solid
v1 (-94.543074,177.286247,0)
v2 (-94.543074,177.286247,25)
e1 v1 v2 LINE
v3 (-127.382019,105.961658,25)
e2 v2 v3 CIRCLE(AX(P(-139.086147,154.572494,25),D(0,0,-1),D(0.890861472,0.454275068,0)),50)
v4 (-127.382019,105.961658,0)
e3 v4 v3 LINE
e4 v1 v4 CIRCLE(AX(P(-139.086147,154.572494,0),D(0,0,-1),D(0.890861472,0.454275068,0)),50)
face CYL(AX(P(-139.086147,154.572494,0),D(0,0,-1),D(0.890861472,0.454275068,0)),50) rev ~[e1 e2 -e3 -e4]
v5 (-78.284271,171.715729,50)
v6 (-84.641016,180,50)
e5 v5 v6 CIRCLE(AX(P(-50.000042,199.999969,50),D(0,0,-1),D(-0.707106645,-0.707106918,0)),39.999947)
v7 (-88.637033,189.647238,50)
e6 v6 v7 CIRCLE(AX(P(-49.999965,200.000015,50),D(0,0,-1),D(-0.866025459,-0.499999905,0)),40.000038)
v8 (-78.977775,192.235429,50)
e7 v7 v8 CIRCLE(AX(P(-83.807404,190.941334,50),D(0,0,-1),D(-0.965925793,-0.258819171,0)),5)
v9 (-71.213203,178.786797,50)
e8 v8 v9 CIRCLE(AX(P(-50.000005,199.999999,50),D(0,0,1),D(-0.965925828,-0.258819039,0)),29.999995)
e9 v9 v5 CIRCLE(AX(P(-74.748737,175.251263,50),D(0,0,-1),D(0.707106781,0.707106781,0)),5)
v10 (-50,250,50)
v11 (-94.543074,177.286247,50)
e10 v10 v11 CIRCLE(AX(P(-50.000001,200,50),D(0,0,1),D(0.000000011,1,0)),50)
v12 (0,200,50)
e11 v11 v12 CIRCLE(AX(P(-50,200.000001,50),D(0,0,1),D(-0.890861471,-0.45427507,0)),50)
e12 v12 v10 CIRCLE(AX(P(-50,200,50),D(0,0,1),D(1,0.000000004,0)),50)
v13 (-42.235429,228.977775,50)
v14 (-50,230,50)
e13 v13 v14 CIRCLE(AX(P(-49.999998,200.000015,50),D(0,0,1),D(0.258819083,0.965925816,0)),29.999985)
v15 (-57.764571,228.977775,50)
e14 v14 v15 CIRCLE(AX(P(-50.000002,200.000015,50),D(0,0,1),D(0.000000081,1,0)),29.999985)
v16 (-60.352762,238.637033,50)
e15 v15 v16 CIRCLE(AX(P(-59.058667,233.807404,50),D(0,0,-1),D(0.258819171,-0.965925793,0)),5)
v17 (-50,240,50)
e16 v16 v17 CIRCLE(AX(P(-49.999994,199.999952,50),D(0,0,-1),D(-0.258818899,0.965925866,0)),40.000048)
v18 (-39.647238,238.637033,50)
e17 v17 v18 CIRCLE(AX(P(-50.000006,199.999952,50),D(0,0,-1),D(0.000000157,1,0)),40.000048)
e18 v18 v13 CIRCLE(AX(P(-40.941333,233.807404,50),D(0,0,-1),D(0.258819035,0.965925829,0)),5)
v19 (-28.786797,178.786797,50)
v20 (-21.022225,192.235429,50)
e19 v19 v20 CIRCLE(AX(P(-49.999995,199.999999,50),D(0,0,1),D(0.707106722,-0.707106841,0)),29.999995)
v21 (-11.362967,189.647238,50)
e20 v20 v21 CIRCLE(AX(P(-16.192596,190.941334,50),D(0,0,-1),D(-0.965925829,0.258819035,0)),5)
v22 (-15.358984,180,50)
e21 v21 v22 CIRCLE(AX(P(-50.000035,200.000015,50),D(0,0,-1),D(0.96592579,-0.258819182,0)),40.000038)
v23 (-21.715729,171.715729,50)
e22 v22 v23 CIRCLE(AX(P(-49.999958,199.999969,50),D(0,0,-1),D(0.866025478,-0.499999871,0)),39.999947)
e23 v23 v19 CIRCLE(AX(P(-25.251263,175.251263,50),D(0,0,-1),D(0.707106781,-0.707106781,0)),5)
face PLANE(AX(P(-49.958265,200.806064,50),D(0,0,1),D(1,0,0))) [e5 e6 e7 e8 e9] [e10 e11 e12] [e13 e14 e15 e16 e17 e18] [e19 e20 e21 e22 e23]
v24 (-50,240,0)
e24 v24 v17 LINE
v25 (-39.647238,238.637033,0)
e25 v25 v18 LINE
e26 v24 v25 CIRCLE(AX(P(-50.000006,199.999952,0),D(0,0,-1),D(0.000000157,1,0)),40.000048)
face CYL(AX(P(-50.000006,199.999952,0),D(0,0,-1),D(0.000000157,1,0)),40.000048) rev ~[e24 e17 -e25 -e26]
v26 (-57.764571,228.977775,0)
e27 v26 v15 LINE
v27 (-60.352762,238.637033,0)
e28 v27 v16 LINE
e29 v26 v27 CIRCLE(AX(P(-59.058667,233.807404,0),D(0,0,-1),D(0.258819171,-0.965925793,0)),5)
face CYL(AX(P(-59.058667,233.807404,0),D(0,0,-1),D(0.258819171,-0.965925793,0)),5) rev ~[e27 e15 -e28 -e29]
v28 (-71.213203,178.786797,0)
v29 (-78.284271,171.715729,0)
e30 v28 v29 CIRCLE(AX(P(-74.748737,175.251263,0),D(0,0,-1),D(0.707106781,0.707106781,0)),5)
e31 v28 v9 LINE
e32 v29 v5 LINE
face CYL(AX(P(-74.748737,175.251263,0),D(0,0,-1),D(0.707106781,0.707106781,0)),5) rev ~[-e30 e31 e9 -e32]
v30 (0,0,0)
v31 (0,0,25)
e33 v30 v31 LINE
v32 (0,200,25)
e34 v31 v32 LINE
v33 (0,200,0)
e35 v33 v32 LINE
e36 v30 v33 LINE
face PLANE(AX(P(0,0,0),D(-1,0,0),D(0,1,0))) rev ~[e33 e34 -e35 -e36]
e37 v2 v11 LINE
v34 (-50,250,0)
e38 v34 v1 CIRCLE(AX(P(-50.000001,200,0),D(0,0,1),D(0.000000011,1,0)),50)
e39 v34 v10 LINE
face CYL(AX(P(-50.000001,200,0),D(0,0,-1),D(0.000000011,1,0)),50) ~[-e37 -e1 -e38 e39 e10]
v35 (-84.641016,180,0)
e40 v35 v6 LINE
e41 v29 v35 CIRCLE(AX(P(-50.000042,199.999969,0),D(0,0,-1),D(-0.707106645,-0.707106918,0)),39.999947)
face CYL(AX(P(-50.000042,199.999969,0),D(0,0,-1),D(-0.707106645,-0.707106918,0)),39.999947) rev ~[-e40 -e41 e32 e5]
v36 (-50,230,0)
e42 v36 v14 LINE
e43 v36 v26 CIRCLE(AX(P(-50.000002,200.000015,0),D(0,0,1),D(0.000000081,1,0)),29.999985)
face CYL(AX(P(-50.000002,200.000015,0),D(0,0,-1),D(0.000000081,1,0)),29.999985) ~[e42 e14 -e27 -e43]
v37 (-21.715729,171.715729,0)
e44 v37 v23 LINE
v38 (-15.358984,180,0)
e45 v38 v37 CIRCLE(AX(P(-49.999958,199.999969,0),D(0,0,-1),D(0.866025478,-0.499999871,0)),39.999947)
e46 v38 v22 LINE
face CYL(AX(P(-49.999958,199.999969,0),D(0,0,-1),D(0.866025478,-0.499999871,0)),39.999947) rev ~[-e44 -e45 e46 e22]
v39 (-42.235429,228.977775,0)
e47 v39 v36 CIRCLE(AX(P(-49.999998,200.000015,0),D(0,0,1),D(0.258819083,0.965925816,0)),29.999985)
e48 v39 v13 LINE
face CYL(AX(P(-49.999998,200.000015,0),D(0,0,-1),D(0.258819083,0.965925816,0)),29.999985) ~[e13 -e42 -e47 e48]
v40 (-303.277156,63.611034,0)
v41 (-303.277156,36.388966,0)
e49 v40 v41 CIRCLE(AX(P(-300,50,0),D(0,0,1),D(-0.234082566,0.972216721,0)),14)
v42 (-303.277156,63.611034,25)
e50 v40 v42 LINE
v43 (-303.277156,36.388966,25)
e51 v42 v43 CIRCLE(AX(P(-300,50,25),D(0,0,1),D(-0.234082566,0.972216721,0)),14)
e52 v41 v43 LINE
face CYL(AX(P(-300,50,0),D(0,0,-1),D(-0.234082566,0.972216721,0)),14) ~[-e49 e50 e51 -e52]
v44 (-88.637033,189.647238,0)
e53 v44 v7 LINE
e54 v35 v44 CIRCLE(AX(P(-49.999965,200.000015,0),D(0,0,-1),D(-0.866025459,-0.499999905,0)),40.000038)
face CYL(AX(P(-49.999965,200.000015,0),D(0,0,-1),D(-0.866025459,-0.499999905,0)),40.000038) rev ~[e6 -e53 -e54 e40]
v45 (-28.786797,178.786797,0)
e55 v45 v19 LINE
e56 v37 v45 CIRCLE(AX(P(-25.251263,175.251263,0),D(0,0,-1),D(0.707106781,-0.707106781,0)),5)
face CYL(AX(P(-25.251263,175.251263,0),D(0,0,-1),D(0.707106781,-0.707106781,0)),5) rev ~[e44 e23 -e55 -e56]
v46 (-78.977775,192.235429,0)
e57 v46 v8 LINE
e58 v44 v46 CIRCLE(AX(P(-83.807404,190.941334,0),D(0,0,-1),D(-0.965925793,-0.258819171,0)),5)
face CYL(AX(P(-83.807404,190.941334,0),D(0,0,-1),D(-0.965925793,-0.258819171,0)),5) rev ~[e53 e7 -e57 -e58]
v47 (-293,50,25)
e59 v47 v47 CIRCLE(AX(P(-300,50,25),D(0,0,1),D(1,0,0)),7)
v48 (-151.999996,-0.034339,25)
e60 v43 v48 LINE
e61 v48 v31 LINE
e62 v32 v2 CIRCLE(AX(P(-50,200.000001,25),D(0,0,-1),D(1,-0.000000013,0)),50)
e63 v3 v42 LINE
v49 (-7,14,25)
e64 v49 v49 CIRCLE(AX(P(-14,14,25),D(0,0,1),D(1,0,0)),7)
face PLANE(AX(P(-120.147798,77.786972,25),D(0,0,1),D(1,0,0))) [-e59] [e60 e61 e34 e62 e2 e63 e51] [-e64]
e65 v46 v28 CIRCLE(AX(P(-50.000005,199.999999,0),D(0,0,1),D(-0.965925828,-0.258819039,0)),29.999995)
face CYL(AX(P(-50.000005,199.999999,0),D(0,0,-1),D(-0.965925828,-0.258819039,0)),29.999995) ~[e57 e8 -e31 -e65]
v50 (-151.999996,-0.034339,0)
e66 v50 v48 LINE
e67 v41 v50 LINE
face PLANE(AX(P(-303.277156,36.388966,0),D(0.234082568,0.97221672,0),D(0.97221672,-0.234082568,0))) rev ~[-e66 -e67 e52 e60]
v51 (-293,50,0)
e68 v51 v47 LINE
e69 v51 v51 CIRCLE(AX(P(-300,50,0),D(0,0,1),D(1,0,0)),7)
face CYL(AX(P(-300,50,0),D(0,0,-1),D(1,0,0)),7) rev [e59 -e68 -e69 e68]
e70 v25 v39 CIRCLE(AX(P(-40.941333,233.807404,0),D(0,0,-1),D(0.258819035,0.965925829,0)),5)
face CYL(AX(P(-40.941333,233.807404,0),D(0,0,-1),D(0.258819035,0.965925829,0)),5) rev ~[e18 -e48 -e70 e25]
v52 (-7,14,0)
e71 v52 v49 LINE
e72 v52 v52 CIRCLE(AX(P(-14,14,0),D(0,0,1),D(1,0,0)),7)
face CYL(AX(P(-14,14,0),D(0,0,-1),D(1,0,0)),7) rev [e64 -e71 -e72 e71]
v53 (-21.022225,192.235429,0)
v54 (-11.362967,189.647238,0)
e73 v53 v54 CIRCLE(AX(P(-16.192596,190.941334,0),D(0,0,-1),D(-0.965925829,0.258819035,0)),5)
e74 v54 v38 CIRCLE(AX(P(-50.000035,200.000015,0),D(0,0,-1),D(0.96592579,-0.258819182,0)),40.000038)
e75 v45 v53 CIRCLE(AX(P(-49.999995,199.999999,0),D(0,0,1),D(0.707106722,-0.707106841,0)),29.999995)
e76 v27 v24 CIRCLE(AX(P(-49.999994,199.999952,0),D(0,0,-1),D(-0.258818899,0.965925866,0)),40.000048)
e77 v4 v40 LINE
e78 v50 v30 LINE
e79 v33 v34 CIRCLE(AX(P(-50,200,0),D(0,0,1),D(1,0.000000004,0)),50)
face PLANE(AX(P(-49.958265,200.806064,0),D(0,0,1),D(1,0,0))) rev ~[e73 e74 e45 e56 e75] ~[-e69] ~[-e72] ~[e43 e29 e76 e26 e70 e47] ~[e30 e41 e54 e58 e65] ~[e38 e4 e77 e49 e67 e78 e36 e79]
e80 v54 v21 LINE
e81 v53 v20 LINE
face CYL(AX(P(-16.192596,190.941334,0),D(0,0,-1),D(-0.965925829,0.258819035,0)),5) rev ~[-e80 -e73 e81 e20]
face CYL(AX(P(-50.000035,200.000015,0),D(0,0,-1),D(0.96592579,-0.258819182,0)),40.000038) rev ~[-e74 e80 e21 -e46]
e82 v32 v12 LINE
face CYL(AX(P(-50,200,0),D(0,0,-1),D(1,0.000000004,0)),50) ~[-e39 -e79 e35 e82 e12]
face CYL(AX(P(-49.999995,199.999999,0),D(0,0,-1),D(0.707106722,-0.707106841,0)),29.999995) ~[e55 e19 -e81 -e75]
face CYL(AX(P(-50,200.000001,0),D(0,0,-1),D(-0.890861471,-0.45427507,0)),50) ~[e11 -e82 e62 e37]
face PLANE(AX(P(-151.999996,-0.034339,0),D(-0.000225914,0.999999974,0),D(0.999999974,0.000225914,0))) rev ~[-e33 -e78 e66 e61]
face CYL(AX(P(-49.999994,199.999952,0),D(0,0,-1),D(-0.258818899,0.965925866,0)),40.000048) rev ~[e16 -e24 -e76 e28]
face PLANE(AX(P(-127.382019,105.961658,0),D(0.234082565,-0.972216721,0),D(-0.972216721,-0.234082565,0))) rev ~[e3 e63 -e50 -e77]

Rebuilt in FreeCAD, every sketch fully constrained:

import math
import FreeCAD as App
import Part
import Sketcher

doc = App.newDocument("Part")
body = doc.addObject("PartDesign::Body", "Body")

# Sketch on XY plane
sketch1 = doc.addObject("Sketcher::SketchObject", "Sketch")
body.addObject(sketch1)
sketch1.AttachmentSupport = (doc.XY_Plane, [""])
sketch1.MapMode = "FlatFace"
sketch1.addGeometry(Part.LineSegment(App.Vector(-152, 0, 0), App.Vector(0, 0, 0)), False)
sketch1.addGeometry(Part.LineSegment(App.Vector(0, 0, 0), App.Vector(0, 200, 0)), False)
sketch1.addGeometry(Part.ArcOfCircle(Part.Circle(App.Vector(-50, 200, 0), App.Vector(0, 0, 1), 50), math.radians(-153), math.radians(0)), False)
sketch1.addGeometry(Part.ArcOfCircle(Part.Circle(App.Vector(-139, 155, 0), App.Vector(0, 0, 1), 50), math.radians(-76), math.radians(27)), False)
sketch1.addGeometry(Part.LineSegment(App.Vector(-127, 106, 0), App.Vector(-303, 64, 0)), False)
sketch1.addGeometry(Part.ArcOfCircle(Part.Circle(App.Vector(-300, 50, 0), App.Vector(0, 0, 1), 14), math.radians(104), math.radians(256)), False)
sketch1.addGeometry(Part.LineSegment(App.Vector(-303, 36, 0), App.Vector(-152, 0, 0)), False)
sketch1.addGeometry(Part.Circle(App.Vector(-14, 14, 0), App.Vector(0, 0, 1), 7), False)
sketch1.addGeometry(Part.Circle(App.Vector(-300, 50, 0), App.Vector(0, 0, 1), 7), False)
sketch1.addConstraint(Sketcher.Constraint("Coincident", 0, 2, 1, 1))
sketch1.addConstraint(Sketcher.Constraint("Tangent", 1, 2, 2, 2))
sketch1.addConstraint(Sketcher.Constraint("Tangent", 2, 1, 3, 2))
sketch1.addConstraint(Sketcher.Constraint("Tangent", 3, 1, 4, 1))
sketch1.addConstraint(Sketcher.Constraint("Tangent", 4, 2, 5, 1))
sketch1.addConstraint(Sketcher.Constraint("Tangent", 5, 2, 6, 1))
sketch1.addConstraint(Sketcher.Constraint("Coincident", 6, 2, 0, 1))
sketch1.addConstraint(Sketcher.Constraint("Vertical", 1))
sketch1.addConstraint(Sketcher.Constraint("Coincident", 0, 2, -1, 1))
sketch1.addConstraint(Sketcher.Constraint("Coincident", 8, 3, 5, 3))
sketch1.addConstraint(Sketcher.Constraint("Equal", 2, 3))
sketch1.addConstraint(Sketcher.Constraint("Equal", 7, 8))
sketch1.addConstraint(Sketcher.Constraint("Vertical", 4, 2, 5, 2))
sketch1.addConstraint(Sketcher.Constraint("Diameter", 7, 14.0))
sketch1.addConstraint(Sketcher.Constraint("Radius", 2, 50.0))
sketch1.addConstraint(Sketcher.Constraint("Radius", 5, 14.0))
sketch1.addConstraint(Sketcher.Constraint("DistanceY", 1, 1, 1, 2, 200.0))
sketch1.addConstraint(Sketcher.Constraint("Distance", 0, 152.0))
sketch1.addConstraint(Sketcher.Constraint("DistanceX", 5, 3, -1, 1, 300.0))
sketch1.addConstraint(Sketcher.Constraint("DistanceY", -1, 1, 5, 3, 50.0))
sketch1.addConstraint(Sketcher.Constraint("DistanceX", 7, 3, -1, 1, 14.0))
sketch1.addConstraint(Sketcher.Constraint("DistanceY", -1, 1, 7, 3, 14.0))
sketch1.addConstraint(Sketcher.Constraint("DistanceX", 3, 1, -1, 1, 127.382019))
pad1 = doc.addObject("PartDesign::Pad", "Pad")
body.addObject(pad1)
pad1.Profile = sketch1
pad1.Length = 25

# Sketch on XY plane
sketch2 = doc.addObject("Sketcher::SketchObject", "Sketch001")
body.addObject(sketch2)
sketch2.AttachmentSupport = (doc.XY_Plane, [""])
sketch2.MapMode = "FlatFace"
sketch2.addGeometry(Part.ArcOfCircle(Part.Circle(App.Vector(-50, 200.000001, 0), App.Vector(0, 0, 1), 50), math.radians(-152.981699), math.radians(-0.000001)), False)
sketch2.addGeometry(Part.ArcOfCircle(Part.Circle(App.Vector(-50, 200, 0), App.Vector(0, 0, 1), 50), math.radians(0), math.radians(90)), False)
sketch2.addGeometry(Part.ArcOfCircle(Part.Circle(App.Vector(-50.000001, 200, 0), App.Vector(0, 0, 1), 50), math.radians(89.999999), math.radians(207.0183)), False)
sketch2.addGeometry(Part.ArcOfCircle(Part.Circle(App.Vector(-50.000042, 199.999969, 0), App.Vector(0, 0, 1), 39.999947), math.radians(-150.000009), math.radians(-134.999989)), False)
sketch2.addGeometry(Part.ArcOfCircle(Part.Circle(App.Vector(-49.999965, 200.000015, 0), App.Vector(0, 0, 1), 40.000038), math.radians(-164.999992), math.radians(-150.000006)), False)
sketch2.addGeometry(Part.ArcOfCircle(Part.Circle(App.Vector(-83.807404, 190.941334, 0), App.Vector(0, 0, 1), 5), math.radians(14.999999), math.radians(195.000007)), False)
sketch2.addGeometry(Part.ArcOfCircle(Part.Circle(App.Vector(-50.000005, 199.999999, 0), App.Vector(0, 0, 1), 29.999995), math.radians(-165), math.radians(-134.999995)), False)
sketch2.addGeometry(Part.ArcOfCircle(Part.Circle(App.Vector(-74.748737, 175.251263, 0), App.Vector(0, 0, 1), 5), math.radians(-135), math.radians(45)), False)
sketch2.addGeometry(Part.ArcOfCircle(Part.Circle(App.Vector(-50.000035, 200.000015, 0), App.Vector(0, 0, 1), 40.000038), math.radians(-29.999994), math.radians(-15.000008)), False)
sketch2.addGeometry(Part.ArcOfCircle(Part.Circle(App.Vector(-49.999958, 199.999969, 0), App.Vector(0, 0, 1), 39.999947), math.radians(-45.000011), math.radians(-29.999991)), False)
sketch2.addGeometry(Part.ArcOfCircle(Part.Circle(App.Vector(-25.251263, 175.251263, 0), App.Vector(0, 0, 1), 5), math.radians(135), math.radians(315)), False)
sketch2.addGeometry(Part.ArcOfCircle(Part.Circle(App.Vector(-49.999995, 199.999999, 0), App.Vector(0, 0, 1), 29.999995), math.radians(-45.000005), math.radians(-15)), False)
sketch2.addGeometry(Part.ArcOfCircle(Part.Circle(App.Vector(-16.192596, 190.941334, 0), App.Vector(0, 0, 1), 5), math.radians(-15.000007), math.radians(165.000001)), False)
sketch2.addGeometry(Part.ArcOfCircle(Part.Circle(App.Vector(-59.058667, 233.807404, 0), App.Vector(0, 0, 1), 5), math.radians(104.999999), math.radians(285.000007)), False)
sketch2.addGeometry(Part.ArcOfCircle(Part.Circle(App.Vector(-49.999994, 199.999952, 0), App.Vector(0, 0, 1), 40.000048), math.radians(90.000009), math.radians(104.999991)), False)
sketch2.addGeometry(Part.ArcOfCircle(Part.Circle(App.Vector(-50.000006, 199.999952, 0), App.Vector(0, 0, 1), 40.000048), math.radians(75.000009), math.radians(89.999991)), False)
sketch2.addGeometry(Part.ArcOfCircle(Part.Circle(App.Vector(-40.941333, 233.807404, 0), App.Vector(0, 0, 1), 5), math.radians(-105.000007), math.radians(75.000001)), False)
sketch2.addGeometry(Part.ArcOfCircle(Part.Circle(App.Vector(-49.999998, 200.000015, 0), App.Vector(0, 0, 1), 29.999985), math.radians(74.999998), math.radians(90.000005)), False)
sketch2.addGeometry(Part.ArcOfCircle(Part.Circle(App.Vector(-50.000002, 200.000015, 0), App.Vector(0, 0, 1), 29.999985), math.radians(89.999995), math.radians(105.000002)), False)
sketch2.addConstraint(Sketcher.Constraint("Coincident", 0, 2, 1, 1))
sketch2.addConstraint(Sketcher.Constraint("Coincident", 1, 2, 2, 1))
sketch2.addConstraint(Sketcher.Constraint("Coincident", 2, 2, 0, 1))
sketch2.addConstraint(Sketcher.Constraint("Coincident", 3, 1, 4, 2))
sketch2.addConstraint(Sketcher.Constraint("Coincident", 4, 1, 5, 2))
sketch2.addConstraint(Sketcher.Constraint("Coincident", 5, 1, 6, 1))
sketch2.addConstraint(Sketcher.Constraint("Coincident", 6, 2, 7, 2))
sketch2.addConstraint(Sketcher.Constraint("Coincident", 7, 1, 3, 2))
sketch2.addConstraint(Sketcher.Constraint("Coincident", 8, 1, 9, 2))
sketch2.addConstraint(Sketcher.Constraint("Coincident", 9, 1, 10, 2))
sketch2.addConstraint(Sketcher.Constraint("Coincident", 10, 1, 11, 1))
sketch2.addConstraint(Sketcher.Constraint("Coincident", 11, 2, 12, 2))
sketch2.addConstraint(Sketcher.Constraint("Coincident", 12, 1, 8, 2))
sketch2.addConstraint(Sketcher.Constraint("Coincident", 13, 1, 14, 2))
sketch2.addConstraint(Sketcher.Constraint("Coincident", 14, 1, 15, 2))
sketch2.addConstraint(Sketcher.Constraint("Coincident", 15, 1, 16, 2))
sketch2.addConstraint(Sketcher.Constraint("Coincident", 16, 1, 17, 1))
sketch2.addConstraint(Sketcher.Constraint("Coincident", 17, 2, 18, 1))
sketch2.addConstraint(Sketcher.Constraint("Coincident", 18, 2, 13, 2))
sketch2.addConstraint(Sketcher.Constraint("Coincident", 1, 3, 0, 3))
sketch2.addConstraint(Sketcher.Constraint("Coincident", 6, 3, 0, 3))
sketch2.addConstraint(Sketcher.Constraint("Coincident", 11, 3, 0, 3))
sketch2.addConstraint(Sketcher.Constraint("Coincident", 18, 3, 17, 3))
sketch2.addConstraint(Sketcher.Constraint("PointOnObject", 0, 2, -2))
sketch2.addConstraint(Sketcher.Constraint("Radius", 0, 50.0))
sketch2.addConstraint(Sketcher.Constraint("Radius", 2, 50.0))
sketch2.addConstraint(Sketcher.Constraint("Radius", 5, 5.0))
sketch2.addConstraint(Sketcher.Constraint("Radius", 7, 5.0))
sketch2.addConstraint(Sketcher.Constraint("Radius", 10, 5.0))
sketch2.addConstraint(Sketcher.Constraint("Radius", 12, 5.0))
sketch2.addConstraint(Sketcher.Constraint("Radius", 13, 5.0))
sketch2.addConstraint(Sketcher.Constraint("Radius", 16, 5.0))
sketch2.addConstraint(Sketcher.Constraint("DistanceY", -1, 1, 0, 3, 200.000001))
sketch2.addConstraint(Sketcher.Constraint("DistanceY", -1, 1, 0, 2, 200.0))
sketch2.addConstraint(Sketcher.Constraint("DistanceX", 1, 2, -1, 1, 50.0))
sketch2.addConstraint(Sketcher.Constraint("DistanceY", -1, 1, 3, 1, 180.0))
sketch2.addConstraint(Sketcher.Constraint("DistanceY", -1, 1, 8, 1, 180.0))
sketch2.addConstraint(Sketcher.Constraint("DistanceX", 14, 1, -1, 1, 50.0))
sketch2.addConstraint(Sketcher.Constraint("DistanceY", -1, 1, 14, 1, 240.0))
sketch2.addConstraint(Sketcher.Constraint("DistanceX", 17, 2, -1, 1, 50.0))
sketch2.addConstraint(Sketcher.Constraint("DistanceY", -1, 1, 17, 2, 230.0))
sketch2.addConstraint(Sketcher.Constraint("Radius", 3, 39.999947))
sketch2.addConstraint(Sketcher.Constraint("Radius", 4, 40.000038))
sketch2.addConstraint(Sketcher.Constraint("Radius", 6, 29.999995))
sketch2.addConstraint(Sketcher.Constraint("Radius", 8, 40.000038))
sketch2.addConstraint(Sketcher.Constraint("Radius", 9, 39.999947))
sketch2.addConstraint(Sketcher.Constraint("Radius", 11, 29.999995))
sketch2.addConstraint(Sketcher.Constraint("Radius", 14, 40.000048))
sketch2.addConstraint(Sketcher.Constraint("Radius", 15, 40.000048))
sketch2.addConstraint(Sketcher.Constraint("Radius", 17, 29.999985))
sketch2.addConstraint(Sketcher.Constraint("DistanceX", 11, 3, 12, 3, 33.807399))
sketch2.addConstraint(Sketcher.Constraint("DistanceX", 13, 3, 4, 3, 9.058702))
sketch2.addConstraint(Sketcher.Constraint("DistanceX", 8, 3, 16, 3, 9.058702))
sketch2.addConstraint(Sketcher.Constraint("DistanceX", 2, 2, 5, 1, 15.565299))
sketch2.addConstraint(Sketcher.Constraint("DistanceX", 5, 3, 6, 2, 12.594201))
sketch2.addConstraint(Sketcher.Constraint("DistanceX", 10, 1, 12, 3, 12.594201))
sketch2.addConstraint(Sketcher.Constraint("DistanceY", 9, 1, 11, 2, 20.5197))
sketch2.addConstraint(Sketcher.Constraint("DistanceY", -1, 1, 3, 3, 199.999969))
sketch2.addConstraint(Sketcher.Constraint("DistanceY", -1, 1, 9, 3, 199.999969))
sketch2.addConstraint(Sketcher.Constraint("DistanceY", -1, 1, 4, 1, 189.647238))
sketch2.addConstraint(Sketcher.Constraint("DistanceY", -1, 1, 5, 1, 192.235429))
sketch2.addConstraint(Sketcher.Constraint("DistanceX", 7, 1, -1, 1, 78.284271))
sketch2.addConstraint(Sketcher.Constraint("DistanceX", 9, 1, -1, 1, 21.715729))
sketch2.addConstraint(Sketcher.Constraint("DistanceX", 13, 1, -1, 1, 60.352762))
sketch2.addConstraint(Sketcher.Constraint("DistanceX", 15, 1, -1, 1, 39.647238))
sketch2.addConstraint(Sketcher.Constraint("DistanceX", 16, 1, -1, 1, 42.235429))
sketch2.addConstraint(Sketcher.Constraint("DistanceX", 18, 2, -1, 1, 57.764571))
sketch2.addConstraint(Sketcher.Constraint("DistanceX", 5, 3, 3, 3, 33.807362))
sketch2.addConstraint(Sketcher.Constraint("DistanceY", 7, 3, 5, 3, 15.690071))
sketch2.addConstraint(Sketcher.Constraint("DistanceY", 10, 3, 12, 3, 15.690071))
sketch2.addConstraint(Sketcher.Constraint("DistanceY", 8, 3, 13, 3, 33.807389))
sketch2.addConstraint(Sketcher.Constraint("DistanceX", 12, 3, 12, 1, 4.829629))
pad2 = doc.addObject("PartDesign::Pad", "Pad001")
body.addObject(pad2)
pad2.Profile = sketch2
pad2.Length = 50

doc.recompute()
